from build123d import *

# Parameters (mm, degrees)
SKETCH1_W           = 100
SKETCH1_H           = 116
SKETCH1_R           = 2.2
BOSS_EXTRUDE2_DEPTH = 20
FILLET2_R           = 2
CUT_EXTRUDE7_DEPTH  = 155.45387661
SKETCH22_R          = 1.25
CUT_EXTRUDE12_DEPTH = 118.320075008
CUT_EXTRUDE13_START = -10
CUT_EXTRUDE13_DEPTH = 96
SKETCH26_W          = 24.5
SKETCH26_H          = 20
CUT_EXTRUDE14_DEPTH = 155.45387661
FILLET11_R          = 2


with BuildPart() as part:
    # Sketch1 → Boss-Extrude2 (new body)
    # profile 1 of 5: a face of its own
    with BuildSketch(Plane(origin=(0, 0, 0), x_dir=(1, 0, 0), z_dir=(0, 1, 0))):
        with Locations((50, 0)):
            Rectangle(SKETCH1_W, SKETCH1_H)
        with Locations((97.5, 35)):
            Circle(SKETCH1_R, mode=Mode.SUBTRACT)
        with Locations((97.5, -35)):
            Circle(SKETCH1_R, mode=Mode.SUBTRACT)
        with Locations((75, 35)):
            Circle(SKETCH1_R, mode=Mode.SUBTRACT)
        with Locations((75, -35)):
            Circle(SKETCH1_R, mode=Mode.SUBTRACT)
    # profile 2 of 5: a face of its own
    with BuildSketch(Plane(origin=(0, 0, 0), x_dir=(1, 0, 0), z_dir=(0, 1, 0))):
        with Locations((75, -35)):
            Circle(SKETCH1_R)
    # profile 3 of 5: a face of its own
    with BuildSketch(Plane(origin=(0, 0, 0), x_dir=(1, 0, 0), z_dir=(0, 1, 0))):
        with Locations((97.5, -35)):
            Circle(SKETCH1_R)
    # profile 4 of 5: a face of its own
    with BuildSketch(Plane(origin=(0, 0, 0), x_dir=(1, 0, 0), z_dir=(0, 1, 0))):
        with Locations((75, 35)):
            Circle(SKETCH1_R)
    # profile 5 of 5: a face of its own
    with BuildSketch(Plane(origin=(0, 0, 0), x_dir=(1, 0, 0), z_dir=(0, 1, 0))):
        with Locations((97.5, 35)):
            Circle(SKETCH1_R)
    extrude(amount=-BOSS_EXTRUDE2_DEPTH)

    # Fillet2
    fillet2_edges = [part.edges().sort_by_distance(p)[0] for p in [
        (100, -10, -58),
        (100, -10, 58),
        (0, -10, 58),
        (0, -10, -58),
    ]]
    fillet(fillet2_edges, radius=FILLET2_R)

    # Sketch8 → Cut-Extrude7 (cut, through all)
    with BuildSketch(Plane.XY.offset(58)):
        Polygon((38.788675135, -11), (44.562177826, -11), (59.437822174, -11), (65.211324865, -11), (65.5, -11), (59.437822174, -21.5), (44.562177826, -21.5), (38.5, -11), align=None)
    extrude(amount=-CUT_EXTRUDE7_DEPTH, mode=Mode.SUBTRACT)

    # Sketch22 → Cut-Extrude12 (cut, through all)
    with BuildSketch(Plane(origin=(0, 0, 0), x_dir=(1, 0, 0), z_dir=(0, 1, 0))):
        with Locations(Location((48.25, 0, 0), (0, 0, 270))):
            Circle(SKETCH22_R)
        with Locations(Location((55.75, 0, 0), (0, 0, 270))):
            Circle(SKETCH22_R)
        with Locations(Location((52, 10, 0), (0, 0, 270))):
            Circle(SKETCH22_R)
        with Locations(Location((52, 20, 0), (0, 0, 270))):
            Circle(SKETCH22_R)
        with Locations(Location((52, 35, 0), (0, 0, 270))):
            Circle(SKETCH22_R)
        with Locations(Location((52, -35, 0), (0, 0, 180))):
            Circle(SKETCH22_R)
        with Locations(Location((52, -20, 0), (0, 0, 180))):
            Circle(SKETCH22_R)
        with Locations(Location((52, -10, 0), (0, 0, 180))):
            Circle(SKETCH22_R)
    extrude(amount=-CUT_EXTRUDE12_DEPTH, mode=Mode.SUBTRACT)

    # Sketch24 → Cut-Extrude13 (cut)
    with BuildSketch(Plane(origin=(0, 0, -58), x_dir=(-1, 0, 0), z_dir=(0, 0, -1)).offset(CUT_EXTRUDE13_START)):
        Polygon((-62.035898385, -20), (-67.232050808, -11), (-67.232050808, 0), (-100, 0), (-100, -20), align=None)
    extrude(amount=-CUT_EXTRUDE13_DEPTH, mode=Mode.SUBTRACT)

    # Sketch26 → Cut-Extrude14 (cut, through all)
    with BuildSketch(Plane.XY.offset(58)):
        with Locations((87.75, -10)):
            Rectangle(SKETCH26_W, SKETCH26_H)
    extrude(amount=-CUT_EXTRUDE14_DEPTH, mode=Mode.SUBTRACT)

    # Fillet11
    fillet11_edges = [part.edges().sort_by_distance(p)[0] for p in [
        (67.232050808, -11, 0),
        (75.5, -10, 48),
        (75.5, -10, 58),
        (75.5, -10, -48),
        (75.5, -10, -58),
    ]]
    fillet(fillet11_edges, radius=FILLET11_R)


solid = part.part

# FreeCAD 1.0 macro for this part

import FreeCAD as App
import Part
import Sketcher
from FreeCAD import Vector
Q = App.Units.Quantity


def edges_at(feature, points):
    """Names of the edges that pass closest to the given points."""
    edges = feature.Shape.Edges
    near = lambda p: min(range(len(edges)), key=lambda i: edges[i].distToShape(Part.Vertex(*p))[0])
    return sorted({f"Edge{near(p) + 1}" for p in points})


def add_polygon(sketch, points):
    """Adds a closed chain of lines whose ends are joined by coincident constraints."""
    first, n = sketch.GeometryCount, len(points)
    for a, b in zip(points, points[1:] + points[:1]):
        sketch.addGeometry(Part.LineSegment(App.Vector(*a, 0), App.Vector(*b, 0)), False)
    for i in range(n):
        sketch.addConstraint(Sketcher.Constraint("Coincident", first + i, 2, first + (i + 1) % n, 1))

doc = App.newDocument("Part")
body = doc.addObject("PartDesign::Body", "Body")

# Sketch on XZ plane
sketch1 = body.newObject("Sketcher::SketchObject", "Sketch")
sketch1.AttachmentSupport = (doc.getObject("XZ_Plane"), [""])
sketch1.MapMode = "FlatFace"
add_polygon(sketch1, [(0, -58), (0, 58), (100, 58), (100, -58)])  # lines 0-3
sketch1.addConstraint([
    Sketcher.Constraint("Vertical", 0),
    Sketcher.Constraint("Horizontal", 1),
    Sketcher.Constraint("Vertical", 2),
    Sketcher.Constraint("Horizontal", 3),
    Sketcher.Constraint("Symmetric", 0, 2, 3, 2, -1, 1),
    Sketcher.Constraint("DistanceX", 1, 1, 1, 2, 100.0),
    Sketcher.Constraint("DistanceY", 0, 1, 0, 2, 116.0),
])
pad1 = body.newObject("PartDesign::Pad", "Pad")
pad1.Profile = sketch1
pad1.Length = 20
doc.recompute()

fillet = body.newObject("PartDesign::Fillet", "Fillet")
fillet.Base = (pad1, edges_at(pad1, [
    (100, -10, -58),
    (100, -10, 58),
    (0, -10, 58),
    (0, -10, -58),
]))
fillet.Radius = 2

# Sketch on XY plane
sketch2 = body.newObject("Sketcher::SketchObject", "Sketch001")
sketch2.AttachmentSupport = (doc.getObject("XY_Plane"), [""])
sketch2.MapMode = "FlatFace"
sketch2.AttachmentOffset = App.Placement(Vector(0, 0, 58), App.Rotation())
add_polygon(sketch2, [(65.5, -11), (38.5, -11), (44.562178, -21.5), (59.437822, -21.5)])  # lines 0-3
sketch2.addConstraint([
    Sketcher.Constraint("Horizontal", 0),
    Sketcher.Constraint("Horizontal", 2),
    Sketcher.Constraint("Equal", 1, 3),
    Sketcher.Constraint("DistanceX", 0, 2, 0, 1, 27.0),
    Sketcher.Constraint("Angle", 1, Q("-60 deg")),
    Sketcher.Constraint("DistanceY", 0, 2, -1, 1, 11.0),
    Sketcher.Constraint("DistanceX", -1, 1, 0, 2, 38.5),
    Sketcher.Constraint("DistanceY", 1, 2, -1, 1, 21.5),
])
pocket1 = body.newObject("PartDesign::Pocket", "Pocket")
pocket1.Profile = sketch2
pocket1.Type = "ThroughAll"

# Sketch on XZ plane
sketch3 = body.newObject("Sketcher::SketchObject", "Sketch002")
sketch3.AttachmentSupport = (doc.getObject("XZ_Plane"), [""])
sketch3.MapMode = "FlatFace"
sketch3.addGeometry([
    Part.Circle(Vector(48.25, 0, 0), Vector(0, 0, 1), 1.25),  # 0
    Part.Circle(Vector(55.75, 0, 0), Vector(0, 0, 1), 1.25),  # 1
    Part.Circle(Vector(52, -10, 0), Vector(0, 0, 1), 1.25),  # 2
    Part.Circle(Vector(52, -20, 0), Vector(0, 0, 1), 1.25),  # 3
    Part.Circle(Vector(52, -35, 0), Vector(0, 0, 1), 1.25),  # 4
    Part.Circle(Vector(52, 35, 0), Vector(0, 0, 1), 1.25),  # 5
    Part.Circle(Vector(52, 20, 0), Vector(0, 0, 1), 1.25),  # 6
    Part.Circle(Vector(52, 10, 0), Vector(0, 0, 1), 1.25),  # 7
], False)
sketch3.addConstraint([
    Sketcher.Constraint("Equal", 0, 1),
    Sketcher.Constraint("Equal", 1, 2),
    Sketcher.Constraint("Equal", 2, 3),
    Sketcher.Constraint("Equal", 3, 4),
    Sketcher.Constraint("Equal", 4, 5),
    Sketcher.Constraint("Equal", 5, 6),
    Sketcher.Constraint("Equal", 6, 7),
    Sketcher.Constraint("Symmetric", 4, 3, 5, 3, -1),
    Sketcher.Constraint("Symmetric", 3, 3, 6, 3, -1),
    Sketcher.Constraint("Symmetric", 2, 3, 7, 3, -1),
    Sketcher.Constraint("PointOnObject", 0, 3, -1),
    Sketcher.Constraint("PointOnObject", 1, 3, -1),
    Sketcher.Constraint("Vertical", 2, 3, 3, 3),
    Sketcher.Constraint("Vertical", 3, 3, 4, 3),
    Sketcher.Constraint("Diameter", 0, 2.5),
    Sketcher.Constraint("DistanceX", -1, 1, 2, 3, 52.0),
    Sketcher.Constraint("DistanceY", 2, 3, -1, 1, 10.0),
    Sketcher.Constraint("DistanceY", 3, 3, -1, 1, 20.0),
    Sketcher.Constraint("DistanceY", 4, 3, -1, 1, 35.0),
    Sketcher.Constraint("DistanceX", 0, 3, 1, 3, 7.5),
    Sketcher.Constraint("DistanceX", -1, 1, 0, 3, 48.25),
])
pocket2 = body.newObject("PartDesign::Pocket", "Pocket001")
pocket2.Profile = sketch3
pocket2.Type = "ThroughAll"
pocket2.Reversed = True

# Sketch on XY plane
sketch4 = body.newObject("Sketcher::SketchObject", "Sketch003")
sketch4.AttachmentSupport = (doc.getObject("XY_Plane"), [""])
sketch4.MapMode = "FlatFace"
sketch4.AttachmentOffset = App.Placement(Vector(0, 0, -48), App.Rotation())
add_polygon(sketch4, [(62.035898, -20), (67.232051, -11), (67.232051, 0), (100, 0), (100, -20)])  # lines 0-4
sketch4.addConstraint([
    Sketcher.Constraint("Vertical", 1),
    Sketcher.Constraint("Horizontal", 2),
    Sketcher.Constraint("Vertical", 3),
    Sketcher.Constraint("Horizontal", 4),
    Sketcher.Constraint("PointOnObject", 1, 2, -1),
    Sketcher.Constraint("DistanceY", 1, 1, 1, 2, 11.0),
    Sketcher.Constraint("DistanceY", 3, 2, 3, 1, 20.0),
    Sketcher.Constraint("Angle", 0, Q("60 deg")),
    Sketcher.Constraint("DistanceX", -1, 1, 2, 2, 100.0),
    Sketcher.Constraint("DistanceX", 4, 2, 4, 1, 37.964102),
])
pocket3 = body.newObject("PartDesign::Pocket", "Pocket002")
pocket3.Profile = sketch4
pocket3.Length = 96
pocket3.Reversed = True

# Sketch on XY plane
sketch5 = body.newObject("Sketcher::SketchObject", "Sketch004")
sketch5.AttachmentSupport = (doc.getObject("XY_Plane"), [""])
sketch5.MapMode = "FlatFace"
sketch5.AttachmentOffset = App.Placement(Vector(0, 0, 58), App.Rotation())
add_polygon(sketch5, [(75.5, 0), (75.5, -20), (100, -20), (100, 0)])  # lines 0-3
sketch5.addConstraint([
    Sketcher.Constraint("Vertical", 0),
    Sketcher.Constraint("Horizontal", 1),
    Sketcher.Constraint("Vertical", 2),
    Sketcher.Constraint("Horizontal", 3),
    Sketcher.Constraint("PointOnObject", 2, 2, -1),
    Sketcher.Constraint("DistanceY", 0, 2, 0, 1, 20.0),
    Sketcher.Constraint("DistanceX", 1, 1, 1, 2, 24.5),
    Sketcher.Constraint("DistanceX", -1, 1, 1, 2, 100.0),
])
pocket4 = body.newObject("PartDesign::Pocket", "Pocket003")
pocket4.Profile = sketch5
pocket4.Type = "ThroughAll"
doc.recompute()

fillet2 = body.newObject("PartDesign::Fillet", "Fillet001")
fillet2.Base = (pocket4, edges_at(pocket4, [
    (67.232, -11, 0),
    (75.5, -10, 48),
    (75.5, -10, 58),
    (75.5, -10, -48),
    (75.5, -10, -58),
]))
fillet2.Radius = 2

doc.recompute()
